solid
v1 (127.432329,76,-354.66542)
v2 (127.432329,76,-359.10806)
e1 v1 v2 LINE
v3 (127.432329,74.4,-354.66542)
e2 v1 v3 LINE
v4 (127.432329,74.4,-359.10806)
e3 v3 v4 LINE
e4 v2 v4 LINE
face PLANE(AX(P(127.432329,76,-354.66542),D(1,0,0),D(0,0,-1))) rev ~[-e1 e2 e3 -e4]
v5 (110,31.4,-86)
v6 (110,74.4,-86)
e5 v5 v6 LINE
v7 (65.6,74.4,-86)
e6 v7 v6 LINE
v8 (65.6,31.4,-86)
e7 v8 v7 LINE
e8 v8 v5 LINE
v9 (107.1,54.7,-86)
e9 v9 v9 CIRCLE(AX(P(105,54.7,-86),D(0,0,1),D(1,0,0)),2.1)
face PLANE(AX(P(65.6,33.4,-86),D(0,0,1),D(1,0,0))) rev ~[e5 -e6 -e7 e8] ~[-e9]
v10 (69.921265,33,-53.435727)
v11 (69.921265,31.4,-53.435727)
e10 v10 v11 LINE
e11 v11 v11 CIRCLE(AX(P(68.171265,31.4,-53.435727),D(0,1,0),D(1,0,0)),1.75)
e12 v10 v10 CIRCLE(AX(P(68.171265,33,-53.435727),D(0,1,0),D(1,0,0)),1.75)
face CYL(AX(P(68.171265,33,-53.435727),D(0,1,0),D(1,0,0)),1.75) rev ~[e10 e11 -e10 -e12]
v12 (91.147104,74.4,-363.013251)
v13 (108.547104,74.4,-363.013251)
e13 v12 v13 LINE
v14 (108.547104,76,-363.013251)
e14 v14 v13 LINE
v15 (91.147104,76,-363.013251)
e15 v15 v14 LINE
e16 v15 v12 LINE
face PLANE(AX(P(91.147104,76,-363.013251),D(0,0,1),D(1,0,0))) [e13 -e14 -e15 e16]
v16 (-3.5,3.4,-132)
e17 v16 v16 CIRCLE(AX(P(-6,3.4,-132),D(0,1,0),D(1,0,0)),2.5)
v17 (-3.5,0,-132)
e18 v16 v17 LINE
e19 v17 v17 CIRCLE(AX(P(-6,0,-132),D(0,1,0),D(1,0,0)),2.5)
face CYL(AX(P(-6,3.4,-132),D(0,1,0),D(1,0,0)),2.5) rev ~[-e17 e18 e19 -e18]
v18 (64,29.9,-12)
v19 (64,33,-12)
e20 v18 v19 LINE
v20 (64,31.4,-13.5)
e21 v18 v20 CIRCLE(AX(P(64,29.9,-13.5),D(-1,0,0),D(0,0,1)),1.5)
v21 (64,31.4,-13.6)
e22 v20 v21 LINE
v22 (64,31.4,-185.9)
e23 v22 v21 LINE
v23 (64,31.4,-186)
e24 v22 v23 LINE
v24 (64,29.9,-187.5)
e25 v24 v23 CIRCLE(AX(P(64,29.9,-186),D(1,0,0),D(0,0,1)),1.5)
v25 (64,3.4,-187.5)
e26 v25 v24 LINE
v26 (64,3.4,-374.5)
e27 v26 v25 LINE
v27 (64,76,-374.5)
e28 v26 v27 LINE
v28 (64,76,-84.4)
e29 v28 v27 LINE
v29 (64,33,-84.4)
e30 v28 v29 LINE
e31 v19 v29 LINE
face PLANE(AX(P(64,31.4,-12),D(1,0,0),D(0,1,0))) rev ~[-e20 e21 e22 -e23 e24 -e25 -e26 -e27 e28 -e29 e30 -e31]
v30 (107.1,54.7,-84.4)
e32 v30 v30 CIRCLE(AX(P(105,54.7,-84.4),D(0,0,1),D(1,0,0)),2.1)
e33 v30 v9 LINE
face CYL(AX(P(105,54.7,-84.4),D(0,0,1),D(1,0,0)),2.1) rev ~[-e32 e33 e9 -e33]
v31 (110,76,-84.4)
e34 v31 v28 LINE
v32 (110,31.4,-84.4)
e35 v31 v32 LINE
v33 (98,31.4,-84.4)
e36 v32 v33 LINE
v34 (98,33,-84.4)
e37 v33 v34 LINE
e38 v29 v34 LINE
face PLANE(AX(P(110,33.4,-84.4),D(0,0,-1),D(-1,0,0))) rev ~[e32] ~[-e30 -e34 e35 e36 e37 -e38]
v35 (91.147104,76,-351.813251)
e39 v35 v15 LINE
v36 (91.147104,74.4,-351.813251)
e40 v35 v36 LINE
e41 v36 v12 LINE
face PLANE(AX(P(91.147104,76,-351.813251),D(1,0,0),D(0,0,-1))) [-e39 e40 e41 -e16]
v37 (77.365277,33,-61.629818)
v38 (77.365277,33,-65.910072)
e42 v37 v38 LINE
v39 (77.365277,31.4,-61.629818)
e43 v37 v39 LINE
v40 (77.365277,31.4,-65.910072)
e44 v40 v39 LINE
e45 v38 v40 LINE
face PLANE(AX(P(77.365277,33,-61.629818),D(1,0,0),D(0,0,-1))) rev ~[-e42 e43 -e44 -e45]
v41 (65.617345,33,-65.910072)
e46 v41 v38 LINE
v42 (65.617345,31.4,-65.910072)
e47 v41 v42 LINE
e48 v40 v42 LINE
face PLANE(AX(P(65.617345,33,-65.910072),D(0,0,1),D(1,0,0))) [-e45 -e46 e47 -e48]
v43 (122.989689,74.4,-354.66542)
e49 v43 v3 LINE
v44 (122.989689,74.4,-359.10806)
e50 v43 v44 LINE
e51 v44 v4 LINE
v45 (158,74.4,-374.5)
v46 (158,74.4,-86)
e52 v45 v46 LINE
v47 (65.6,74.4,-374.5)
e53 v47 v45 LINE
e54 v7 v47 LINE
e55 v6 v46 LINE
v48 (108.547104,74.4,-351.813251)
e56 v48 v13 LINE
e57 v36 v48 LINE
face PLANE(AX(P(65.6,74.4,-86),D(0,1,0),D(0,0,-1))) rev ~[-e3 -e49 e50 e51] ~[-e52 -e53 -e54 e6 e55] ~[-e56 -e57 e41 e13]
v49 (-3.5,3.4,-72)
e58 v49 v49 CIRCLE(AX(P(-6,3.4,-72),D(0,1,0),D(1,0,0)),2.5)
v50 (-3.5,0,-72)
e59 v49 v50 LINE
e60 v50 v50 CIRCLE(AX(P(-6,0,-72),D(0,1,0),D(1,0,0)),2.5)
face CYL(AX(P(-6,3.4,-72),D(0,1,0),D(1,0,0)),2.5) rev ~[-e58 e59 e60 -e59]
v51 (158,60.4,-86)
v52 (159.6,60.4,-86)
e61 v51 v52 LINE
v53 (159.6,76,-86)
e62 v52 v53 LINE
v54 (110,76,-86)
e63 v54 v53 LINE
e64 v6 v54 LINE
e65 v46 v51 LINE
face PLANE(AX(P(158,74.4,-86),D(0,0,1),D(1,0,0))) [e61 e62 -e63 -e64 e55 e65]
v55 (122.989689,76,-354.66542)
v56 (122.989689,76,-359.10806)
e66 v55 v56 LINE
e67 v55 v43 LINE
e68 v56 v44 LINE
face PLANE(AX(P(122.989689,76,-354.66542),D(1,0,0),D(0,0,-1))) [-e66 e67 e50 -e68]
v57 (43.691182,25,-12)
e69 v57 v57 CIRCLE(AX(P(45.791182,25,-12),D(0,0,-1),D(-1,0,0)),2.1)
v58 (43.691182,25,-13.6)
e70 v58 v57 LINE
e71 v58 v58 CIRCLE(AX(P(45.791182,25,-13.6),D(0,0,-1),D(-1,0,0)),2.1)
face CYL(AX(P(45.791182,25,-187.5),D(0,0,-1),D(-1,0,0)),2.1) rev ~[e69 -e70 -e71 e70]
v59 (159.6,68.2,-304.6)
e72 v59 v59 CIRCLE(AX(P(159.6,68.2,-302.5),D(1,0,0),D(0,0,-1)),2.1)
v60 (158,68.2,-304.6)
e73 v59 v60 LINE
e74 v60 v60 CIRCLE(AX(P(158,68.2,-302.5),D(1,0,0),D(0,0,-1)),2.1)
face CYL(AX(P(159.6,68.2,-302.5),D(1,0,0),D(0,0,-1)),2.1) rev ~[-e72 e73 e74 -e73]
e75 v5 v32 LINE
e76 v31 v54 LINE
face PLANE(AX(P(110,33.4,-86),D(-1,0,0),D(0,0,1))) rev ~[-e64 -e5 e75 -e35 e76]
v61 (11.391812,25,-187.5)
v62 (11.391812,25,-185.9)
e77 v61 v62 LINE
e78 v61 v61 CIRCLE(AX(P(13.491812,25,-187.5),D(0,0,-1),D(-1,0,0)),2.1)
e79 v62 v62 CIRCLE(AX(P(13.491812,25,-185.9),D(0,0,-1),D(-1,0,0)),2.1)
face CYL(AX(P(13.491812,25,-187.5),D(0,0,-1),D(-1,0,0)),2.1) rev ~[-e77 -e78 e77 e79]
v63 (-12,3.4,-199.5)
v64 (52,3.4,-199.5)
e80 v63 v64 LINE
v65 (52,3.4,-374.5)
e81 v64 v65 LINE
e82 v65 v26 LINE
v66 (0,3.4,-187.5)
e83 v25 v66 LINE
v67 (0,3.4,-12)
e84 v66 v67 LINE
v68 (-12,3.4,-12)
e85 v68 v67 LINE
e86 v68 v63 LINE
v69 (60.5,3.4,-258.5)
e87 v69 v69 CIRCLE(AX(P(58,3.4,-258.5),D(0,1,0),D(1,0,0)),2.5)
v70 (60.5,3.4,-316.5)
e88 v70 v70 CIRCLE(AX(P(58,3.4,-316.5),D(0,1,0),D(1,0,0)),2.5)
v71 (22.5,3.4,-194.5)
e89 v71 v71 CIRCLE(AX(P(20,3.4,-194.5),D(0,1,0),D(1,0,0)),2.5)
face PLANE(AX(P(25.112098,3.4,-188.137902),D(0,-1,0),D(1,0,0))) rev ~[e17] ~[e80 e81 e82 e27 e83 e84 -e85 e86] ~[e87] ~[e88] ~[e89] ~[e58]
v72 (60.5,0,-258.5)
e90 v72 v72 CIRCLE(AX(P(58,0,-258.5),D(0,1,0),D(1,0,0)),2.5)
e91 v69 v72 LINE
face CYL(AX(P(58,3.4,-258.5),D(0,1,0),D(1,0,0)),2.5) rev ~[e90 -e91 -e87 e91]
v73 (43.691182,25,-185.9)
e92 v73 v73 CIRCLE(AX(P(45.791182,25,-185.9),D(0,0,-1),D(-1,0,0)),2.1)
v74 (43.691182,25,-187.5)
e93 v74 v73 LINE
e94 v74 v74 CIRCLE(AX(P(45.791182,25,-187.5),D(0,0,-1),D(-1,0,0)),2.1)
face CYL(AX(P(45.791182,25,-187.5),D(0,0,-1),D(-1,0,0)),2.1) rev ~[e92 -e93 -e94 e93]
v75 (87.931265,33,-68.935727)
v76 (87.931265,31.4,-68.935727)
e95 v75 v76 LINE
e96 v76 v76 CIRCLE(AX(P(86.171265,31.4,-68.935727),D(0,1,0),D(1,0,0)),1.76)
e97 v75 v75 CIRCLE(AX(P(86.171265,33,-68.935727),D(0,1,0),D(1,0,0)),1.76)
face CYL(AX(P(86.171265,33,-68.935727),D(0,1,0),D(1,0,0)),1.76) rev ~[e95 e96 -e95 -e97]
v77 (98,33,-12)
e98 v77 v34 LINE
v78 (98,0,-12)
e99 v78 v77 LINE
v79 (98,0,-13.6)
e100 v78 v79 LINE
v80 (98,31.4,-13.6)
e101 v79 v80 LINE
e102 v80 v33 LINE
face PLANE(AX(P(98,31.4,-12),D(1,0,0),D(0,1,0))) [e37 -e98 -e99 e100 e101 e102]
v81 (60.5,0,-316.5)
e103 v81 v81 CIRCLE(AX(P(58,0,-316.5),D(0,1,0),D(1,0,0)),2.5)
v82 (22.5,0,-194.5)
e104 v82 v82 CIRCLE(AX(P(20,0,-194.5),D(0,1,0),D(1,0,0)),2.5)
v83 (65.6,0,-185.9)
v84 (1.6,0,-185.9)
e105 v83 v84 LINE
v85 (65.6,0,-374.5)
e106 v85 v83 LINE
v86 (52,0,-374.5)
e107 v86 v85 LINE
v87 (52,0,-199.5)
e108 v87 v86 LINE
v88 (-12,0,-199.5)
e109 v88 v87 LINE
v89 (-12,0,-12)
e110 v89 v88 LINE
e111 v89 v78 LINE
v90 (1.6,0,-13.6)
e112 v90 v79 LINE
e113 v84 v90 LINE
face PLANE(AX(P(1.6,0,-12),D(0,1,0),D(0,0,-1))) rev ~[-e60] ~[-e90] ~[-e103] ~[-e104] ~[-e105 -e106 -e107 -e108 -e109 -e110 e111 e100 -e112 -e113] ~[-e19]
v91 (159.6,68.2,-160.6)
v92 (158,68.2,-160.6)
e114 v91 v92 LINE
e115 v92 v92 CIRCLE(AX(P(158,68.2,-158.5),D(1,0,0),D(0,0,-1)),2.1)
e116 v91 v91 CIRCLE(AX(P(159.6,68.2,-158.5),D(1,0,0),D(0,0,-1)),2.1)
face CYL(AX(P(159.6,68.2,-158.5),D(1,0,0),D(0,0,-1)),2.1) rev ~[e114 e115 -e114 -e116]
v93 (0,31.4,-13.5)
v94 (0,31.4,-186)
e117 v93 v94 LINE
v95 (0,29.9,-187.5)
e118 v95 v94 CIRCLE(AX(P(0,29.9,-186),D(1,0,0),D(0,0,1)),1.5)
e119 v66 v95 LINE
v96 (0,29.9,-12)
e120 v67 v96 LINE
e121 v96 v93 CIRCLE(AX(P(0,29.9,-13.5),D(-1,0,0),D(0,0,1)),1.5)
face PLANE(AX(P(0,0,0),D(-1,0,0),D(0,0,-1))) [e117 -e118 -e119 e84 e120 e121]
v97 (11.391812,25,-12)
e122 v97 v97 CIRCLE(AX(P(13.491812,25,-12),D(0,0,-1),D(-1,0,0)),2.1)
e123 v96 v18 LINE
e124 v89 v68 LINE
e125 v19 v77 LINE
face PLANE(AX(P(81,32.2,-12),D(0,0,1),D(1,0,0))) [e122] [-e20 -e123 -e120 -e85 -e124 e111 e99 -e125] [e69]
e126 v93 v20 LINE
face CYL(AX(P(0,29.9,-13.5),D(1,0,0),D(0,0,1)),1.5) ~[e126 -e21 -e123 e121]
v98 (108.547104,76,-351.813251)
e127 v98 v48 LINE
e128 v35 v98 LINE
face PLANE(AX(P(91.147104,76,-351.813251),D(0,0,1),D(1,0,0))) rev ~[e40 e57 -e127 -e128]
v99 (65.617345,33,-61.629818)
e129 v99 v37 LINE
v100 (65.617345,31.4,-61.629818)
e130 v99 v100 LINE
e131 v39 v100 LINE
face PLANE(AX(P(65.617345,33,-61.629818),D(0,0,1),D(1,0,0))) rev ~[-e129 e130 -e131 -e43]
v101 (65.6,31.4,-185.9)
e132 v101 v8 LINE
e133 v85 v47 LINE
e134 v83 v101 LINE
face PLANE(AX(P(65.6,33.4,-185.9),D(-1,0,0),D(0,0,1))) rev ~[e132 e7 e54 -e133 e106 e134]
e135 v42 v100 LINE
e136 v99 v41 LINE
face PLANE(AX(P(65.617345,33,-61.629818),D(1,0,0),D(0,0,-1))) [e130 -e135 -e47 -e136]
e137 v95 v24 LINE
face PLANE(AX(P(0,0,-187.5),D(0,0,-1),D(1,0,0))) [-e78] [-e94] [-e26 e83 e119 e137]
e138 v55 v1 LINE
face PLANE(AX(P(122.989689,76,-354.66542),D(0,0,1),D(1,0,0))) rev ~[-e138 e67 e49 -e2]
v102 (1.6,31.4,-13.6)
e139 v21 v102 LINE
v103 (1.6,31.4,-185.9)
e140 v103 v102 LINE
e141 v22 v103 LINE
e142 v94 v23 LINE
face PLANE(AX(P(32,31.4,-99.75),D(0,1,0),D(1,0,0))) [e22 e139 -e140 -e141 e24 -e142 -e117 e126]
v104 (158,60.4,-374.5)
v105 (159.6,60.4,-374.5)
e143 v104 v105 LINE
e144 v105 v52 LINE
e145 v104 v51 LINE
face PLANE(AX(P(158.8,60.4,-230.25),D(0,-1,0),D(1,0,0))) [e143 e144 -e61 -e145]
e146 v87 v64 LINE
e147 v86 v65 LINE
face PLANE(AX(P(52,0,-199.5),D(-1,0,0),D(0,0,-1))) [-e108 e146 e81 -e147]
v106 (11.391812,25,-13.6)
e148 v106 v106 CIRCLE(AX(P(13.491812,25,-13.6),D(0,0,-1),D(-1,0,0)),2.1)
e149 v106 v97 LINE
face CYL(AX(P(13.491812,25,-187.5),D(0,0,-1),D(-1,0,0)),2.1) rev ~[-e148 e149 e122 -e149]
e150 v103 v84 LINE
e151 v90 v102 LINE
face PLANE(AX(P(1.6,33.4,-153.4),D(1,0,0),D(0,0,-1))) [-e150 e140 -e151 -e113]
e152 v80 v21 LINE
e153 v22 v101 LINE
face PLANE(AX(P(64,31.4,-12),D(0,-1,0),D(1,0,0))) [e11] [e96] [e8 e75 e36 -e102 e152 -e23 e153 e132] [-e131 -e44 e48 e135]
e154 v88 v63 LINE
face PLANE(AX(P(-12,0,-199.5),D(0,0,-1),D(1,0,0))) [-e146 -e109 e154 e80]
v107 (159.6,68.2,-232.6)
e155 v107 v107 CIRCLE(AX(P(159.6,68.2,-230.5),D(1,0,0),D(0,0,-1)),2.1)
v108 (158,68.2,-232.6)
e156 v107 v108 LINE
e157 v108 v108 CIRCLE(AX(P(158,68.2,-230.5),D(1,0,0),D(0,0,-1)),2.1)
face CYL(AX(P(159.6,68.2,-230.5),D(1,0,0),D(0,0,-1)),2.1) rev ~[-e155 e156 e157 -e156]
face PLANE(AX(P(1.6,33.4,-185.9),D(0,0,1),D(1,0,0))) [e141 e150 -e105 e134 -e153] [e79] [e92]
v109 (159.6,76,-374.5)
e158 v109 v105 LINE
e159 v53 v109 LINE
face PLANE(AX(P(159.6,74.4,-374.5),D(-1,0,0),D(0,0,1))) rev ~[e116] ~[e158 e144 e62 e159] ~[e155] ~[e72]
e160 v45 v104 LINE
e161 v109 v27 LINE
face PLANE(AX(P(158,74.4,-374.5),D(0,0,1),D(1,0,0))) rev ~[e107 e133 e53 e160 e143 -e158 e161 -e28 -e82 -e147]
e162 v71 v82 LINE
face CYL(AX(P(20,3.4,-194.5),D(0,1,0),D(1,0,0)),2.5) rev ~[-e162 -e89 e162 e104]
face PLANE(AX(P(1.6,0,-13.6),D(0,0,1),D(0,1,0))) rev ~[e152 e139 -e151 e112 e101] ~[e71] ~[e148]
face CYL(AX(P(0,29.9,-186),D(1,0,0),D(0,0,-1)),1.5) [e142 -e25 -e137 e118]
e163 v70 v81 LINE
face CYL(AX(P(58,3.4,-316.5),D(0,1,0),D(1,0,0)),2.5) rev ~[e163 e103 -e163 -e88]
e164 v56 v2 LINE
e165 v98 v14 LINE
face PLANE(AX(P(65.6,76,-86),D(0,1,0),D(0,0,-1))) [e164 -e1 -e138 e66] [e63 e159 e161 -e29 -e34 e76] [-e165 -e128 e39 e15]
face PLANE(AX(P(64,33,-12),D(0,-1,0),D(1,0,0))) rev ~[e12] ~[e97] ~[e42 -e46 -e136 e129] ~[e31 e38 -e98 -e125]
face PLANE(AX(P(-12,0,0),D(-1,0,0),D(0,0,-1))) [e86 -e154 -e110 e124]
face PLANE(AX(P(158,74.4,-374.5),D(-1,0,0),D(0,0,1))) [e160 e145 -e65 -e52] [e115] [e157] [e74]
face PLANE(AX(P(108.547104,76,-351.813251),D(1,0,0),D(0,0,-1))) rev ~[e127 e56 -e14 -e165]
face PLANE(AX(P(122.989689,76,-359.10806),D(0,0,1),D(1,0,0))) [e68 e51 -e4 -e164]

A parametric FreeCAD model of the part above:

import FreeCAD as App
import Part
import Sketcher
from FreeCAD import Vector
Q = App.Units.Quantity


def edges_at(feature, points):
    """Names of the edges that pass closest to the given points."""
    edges = feature.Shape.Edges
    near = lambda p: min(range(len(edges)), key=lambda i: edges[i].distToShape(Part.Vertex(*p))[0])
    return sorted({f"Edge{near(p) + 1}" for p in points})


def add_polygon(sketch, points):
    """Adds a closed chain of lines whose ends are joined by coincident constraints."""
    first, n = sketch.GeometryCount, len(points)
    for a, b in zip(points, points[1:] + points[:1]):
        sketch.addGeometry(Part.LineSegment(App.Vector(*a, 0), App.Vector(*b, 0)), False)
    for i in range(n):
        sketch.addConstraint(Sketcher.Constraint("Coincident", first + i, 2, first + (i + 1) % n, 1))

doc = App.newDocument("Part")
body = doc.addObject("PartDesign::Body", "Body")

sketch1 = doc.addObject("Sketcher::SketchObject", "Sketch")
body.addObject(sketch1)
sketch1.AttachmentSupport = (doc.XZ_Plane, [""])
sketch1.MapMode = "FlatFace"
add_polygon(sketch1, [(0, -187.5), (0, 0), (1.6, 0), (1.6, -153.4), (65.6, -153.4), (65.6, -374.5), (64, -374.5), (64, -187.5)])
sketch1.addConstraint(Sketcher.Constraint("Vertical", 0))
sketch1.addConstraint(Sketcher.Constraint("Horizontal", 1))
sketch1.addConstraint(Sketcher.Constraint("Vertical", 2))
sketch1.addConstraint(Sketcher.Constraint("Horizontal", 3))
sketch1.addConstraint(Sketcher.Constraint("Vertical", 4))
sketch1.addConstraint(Sketcher.Constraint("Horizontal", 5))
sketch1.addConstraint(Sketcher.Constraint("Vertical", 6))
sketch1.addConstraint(Sketcher.Constraint("Horizontal", 7))
sketch1.addConstraint(Sketcher.Constraint("Coincident", 0, 2, -1, 1))
sketch1.addConstraint(Sketcher.Constraint("Equal", 1, 5))
sketch1.addConstraint(Sketcher.Constraint("DistanceX", 3, 1, 3, 2, Q("64 mm")))
sketch1.addConstraint(Sketcher.Constraint("DistanceY", 6, 1, 6, 2, Q("187 mm")))
sketch1.addConstraint(Sketcher.Constraint("DistanceX", 1, 1, 1, 2, Q("1.6 mm")))
sketch1.addConstraint(Sketcher.Constraint("DistanceY", 0, 1, 0, 2, Q("187.5 mm")))
sketch1.addConstraint(Sketcher.Constraint("DistanceY", 2, 2, 2, 1, Q("153.4 mm")))
pad1 = doc.addObject("PartDesign::Pad", "Pad")
body.addObject(pad1)
pad1.Profile = sketch1
pad1.Length = 76
pad1.Reversed = True

sketch2 = doc.addObject("Sketcher::SketchObject", "Sketch001")
body.addObject(sketch2)
sketch2.AttachmentSupport = (doc.YZ_Plane, [""])
sketch2.MapMode = "FlatFace"
add_polygon(sketch2, [(76, -188), (33, -188), (33, 0), (76, 0)])
sketch2.addConstraint(Sketcher.Constraint("Horizontal", 0))
sketch2.addConstraint(Sketcher.Constraint("Vertical", 1))
sketch2.addConstraint(Sketcher.Constraint("Horizontal", 2))
sketch2.addConstraint(Sketcher.Constraint("Vertical", 3))
sketch2.addConstraint(Sketcher.Constraint("PointOnObject", 1, 2, -1))
sketch2.addConstraint(Sketcher.Constraint("DistanceX", 0, 2, 0, 1, Q("42.6 mm")))
sketch2.addConstraint(Sketcher.Constraint("DistanceY", 1, 1, 1, 2, Q("187.5 mm")))
sketch2.addConstraint(Sketcher.Constraint("DistanceX", -1, 1, 2, 2, Q("76 mm")))
pocket1 = doc.addObject("PartDesign::Pocket", "Pocket")
body.addObject(pocket1)
pocket1.Profile = sketch2
pocket1.Length = 64
pocket1.Reversed = True

sketch3 = doc.addObject("Sketcher::SketchObject", "Sketch002")
body.addObject(sketch3)
sketch3.AttachmentSupport = (doc.XZ_Plane, [""])
sketch3.MapMode = "FlatFace"
add_polygon(sketch3, [(0, 0), (-12, 0), (-12, -200), (52, -200), (52, -374), (64, -374), (64, -188), (0, -188)])
sketch3.addConstraint(Sketcher.Constraint("Horizontal", 0))
sketch3.addConstraint(Sketcher.Constraint("Vertical", 1))
sketch3.addConstraint(Sketcher.Constraint("Horizontal", 2))
sketch3.addConstraint(Sketcher.Constraint("Vertical", 3))
sketch3.addConstraint(Sketcher.Constraint("Horizontal", 4))
sketch3.addConstraint(Sketcher.Constraint("Vertical", 5))
sketch3.addConstraint(Sketcher.Constraint("Horizontal", 6))
sketch3.addConstraint(Sketcher.Constraint("Vertical", 7))
sketch3.addConstraint(Sketcher.Constraint("Coincident", 7, 2, -1, 1))
sketch3.addConstraint(Sketcher.Constraint("Equal", 0, 4))
sketch3.addConstraint(Sketcher.Constraint("DistanceX", 0, 2, 0, 1, Q("12 mm")))
sketch3.addConstraint(Sketcher.Constraint("DistanceX", 2, 1, 2, 2, Q("64 mm")))
sketch3.addConstraint(Sketcher.Constraint("DistanceY", 3, 2, 3, 1, Q("175 mm")))
sketch3.addConstraint(Sketcher.Constraint("DistanceY", 5, 1, 5, 2, Q("187 mm")))
sketch3.addConstraint(Sketcher.Constraint("DistanceY", 1, 2, 1, 1, Q("199.5 mm")))
pad2 = doc.addObject("PartDesign::Pad", "Pad001")
body.addObject(pad2)
pad2.Profile = sketch3
pad2.Length = 3.4
pad2.Reversed = True

sketch4 = doc.addObject("Sketcher::SketchObject", "Sketch003")
body.addObject(sketch4)
sketch4.AttachmentSupport = (doc.XY_Plane, [""])
sketch4.MapMode = "FlatFace"
add_polygon(sketch4, [(-12, 3.4), (-12, 0), (1.6, 0), (1.6, 33.4), (0, 33.4), (0, 3.4)])
sketch4.addConstraint(Sketcher.Constraint("Vertical", 0))
sketch4.addConstraint(Sketcher.Constraint("Horizontal", 1))
sketch4.addConstraint(Sketcher.Constraint("Vertical", 2))
sketch4.addConstraint(Sketcher.Constraint("Horizontal", 3))
sketch4.addConstraint(Sketcher.Constraint("Vertical", 4))
sketch4.addConstraint(Sketcher.Constraint("Horizontal", 5))
sketch4.addConstraint(Sketcher.Constraint("PointOnObject", 0, 2, -1))
sketch4.addConstraint(Sketcher.Constraint("PointOnObject", 3, 2, -2))
sketch4.addConstraint(Sketcher.Constraint("DistanceX", 5, 2, 5, 1, Q("12 mm")))
sketch4.addConstraint(Sketcher.Constraint("DistanceY", 4, 2, 4, 1, Q("30 mm")))
sketch4.addConstraint(Sketcher.Constraint("DistanceX", 1, 1, 1, 2, Q("13.6 mm")))
sketch4.addConstraint(Sketcher.Constraint("DistanceY", 0, 2, 0, 1, Q("3.4 mm")))
pocket2 = doc.addObject("PartDesign::Pocket", "Pocket001")
body.addObject(pocket2)
pocket2.Profile = sketch4
pocket2.Length = 12

sketch5 = doc.addObject("Sketcher::SketchObject", "Sketch004")
body.addObject(sketch5)
sketch5.AttachmentSupport = (doc.XY_Plane, [""])
sketch5.MapMode = "FlatFace"
sketch5.AttachmentOffset = App.Placement(Vector(0, 0, -153.4), App.Rotation())
add_polygon(sketch5, [(64, 76), (64, 33.4), (65.6, 33.4), (65.6, 76)])
sketch5.addConstraint(Sketcher.Constraint("Vertical", 0))
sketch5.addConstraint(Sketcher.Constraint("Horizontal", 1))
sketch5.addConstraint(Sketcher.Constraint("Vertical", 2))
sketch5.addConstraint(Sketcher.Constraint("Horizontal", 3))
sketch5.addConstraint(Sketcher.Constraint("DistanceX", 1, 1, 1, 2, Q("1.6 mm")))
sketch5.addConstraint(Sketcher.Constraint("DistanceY", 0, 2, 0, 1, Q("42.6 mm")))
sketch5.addConstraint(Sketcher.Constraint("DistanceX", -1, 1, 0, 2, Q("64 mm")))
sketch5.addConstraint(Sketcher.Constraint("DistanceY", -1, 1, 2, 2, Q("76 mm")))
pad3 = doc.addObject("PartDesign::Pad", "Pad002")
body.addObject(pad3)
pad3.Profile = sketch5
pad3.Length = 141.4

sketch6 = doc.addObject("Sketcher::SketchObject", "Sketch005")
body.addObject(sketch6)
sketch6.AttachmentSupport = (doc.YZ_Plane, [""])
sketch6.MapMode = "FlatFace"
sketch6.AttachmentOffset = App.Placement(Vector(0, 0, 1.6), App.Rotation())
add_polygon(sketch6, [(33.4, -12), (0, -12), (0, -13.6), (33.4, -13.6)])
sketch6.addConstraint(Sketcher.Constraint("Horizontal", 0))
sketch6.addConstraint(Sketcher.Constraint("Vertical", 1))
sketch6.addConstraint(Sketcher.Constraint("Horizontal", 2))
sketch6.addConstraint(Sketcher.Constraint("Vertical", 3))
sketch6.addConstraint(Sketcher.Constraint("PointOnObject", 0, 2, -2))
sketch6.addConstraint(Sketcher.Constraint("DistanceX", 0, 2, 0, 1, Q("33.4 mm")))
sketch6.addConstraint(Sketcher.Constraint("DistanceY", 1, 2, 1, 1, Q("1.6 mm")))
sketch6.addConstraint(Sketcher.Constraint("DistanceY", 0, 2, -1, 1, Q("12 mm")))
pad4 = doc.addObject("PartDesign::Pad", "Pad003")
body.addObject(pad4)
pad4.Profile = sketch6
pad4.Length = 158

sketch7 = doc.addObject("Sketcher::SketchObject", "Sketch006")
body.addObject(sketch7)
sketch7.AttachmentSupport = (doc.YZ_Plane, [""])
sketch7.MapMode = "FlatFace"
sketch7.AttachmentOffset = App.Placement(Vector(0, 0, 65.6), App.Rotation())
add_polygon(sketch7, [(35, -12), (33.4, -12), (33.4, -86), (35, -86)])
sketch7.addConstraint(Sketcher.Constraint("Horizontal", 0))
sketch7.addConstraint(Sketcher.Constraint("Vertical", 1))
sketch7.addConstraint(Sketcher.Constraint("Horizontal", 2))
sketch7.addConstraint(Sketcher.Constraint("Vertical", 3))
sketch7.addConstraint(Sketcher.Constraint("DistanceY", 1, 2, 1, 1, Q("74 mm")))
sketch7.addConstraint(Sketcher.Constraint("DistanceX", 0, 2, 0, 1, Q("1.6 mm")))
sketch7.addConstraint(Sketcher.Constraint("DistanceY", 0, 2, -1, 1, Q("12 mm")))
sketch7.addConstraint(Sketcher.Constraint("DistanceX", -1, 1, 2, 2, Q("35 mm")))
pad5 = doc.addObject("PartDesign::Pad", "Pad004")
body.addObject(pad5)
pad5.Profile = sketch7
pad5.Length = 94

sketch8 = doc.addObject("Sketcher::SketchObject", "Sketch007")
body.addObject(sketch8)
sketch8.AttachmentSupport = (doc.XY_Plane, [""])
sketch8.MapMode = "FlatFace"
sketch8.AttachmentOffset = App.Placement(Vector(0, 0, -12), App.Rotation())
add_polygon(sketch8, [(64, 76), (64, 35), (65.6, 35), (65.6, 76)])
sketch8.addConstraint(Sketcher.Constraint("Vertical", 0))
sketch8.addConstraint(Sketcher.Constraint("Horizontal", 1))
sketch8.addConstraint(Sketcher.Constraint("Vertical", 2))
sketch8.addConstraint(Sketcher.Constraint("Horizontal", 3))
sketch8.addConstraint(Sketcher.Constraint("DistanceY", 0, 2, 0, 1, Q("41 mm")))
sketch8.addConstraint(Sketcher.Constraint("DistanceX", 1, 1, 1, 2, Q("1.6 mm")))
sketch8.addConstraint(Sketcher.Constraint("DistanceX", -1, 1, 0, 2, Q("64 mm")))
sketch8.addConstraint(Sketcher.Constraint("DistanceY", -1, 1, 0, 2, Q("35 mm")))
pocket3 = doc.addObject("PartDesign::Pocket", "Pocket002")
body.addObject(pocket3)
pocket3.Profile = sketch8
pocket3.Length = 74

sketch9 = doc.addObject("Sketcher::SketchObject", "Sketch008")
body.addObject(sketch9)
sketch9.AttachmentSupport = (doc.XY_Plane, [""])
sketch9.MapMode = "FlatFace"
sketch9.AttachmentOffset = App.Placement(Vector(0, 0, -86), App.Rotation())
add_polygon(sketch9, [(64, 76), (64, 35), (160, 35), (160, 76)])
sketch9.addConstraint(Sketcher.Constraint("Vertical", 0))
sketch9.addConstraint(Sketcher.Constraint("Horizontal", 1))
sketch9.addConstraint(Sketcher.Constraint("Vertical", 2))
sketch9.addConstraint(Sketcher.Constraint("Horizontal", 3))
sketch9.addConstraint(Sketcher.Constraint("DistanceY", 0, 2, 0, 1, Q("41 mm")))
sketch9.addConstraint(Sketcher.Constraint("DistanceX", 1, 1, 1, 2, Q("95.6 mm")))
sketch9.addConstraint(Sketcher.Constraint("DistanceX", -1, 1, 0, 2, Q("64 mm")))
sketch9.addConstraint(Sketcher.Constraint("DistanceY", -1, 1, 0, 2, Q("35 mm")))
pad6 = doc.addObject("PartDesign::Pad", "Pad005")
body.addObject(pad6)
pad6.Profile = sketch9
pad6.Length = 1.6

sketch10 = doc.addObject("Sketcher::SketchObject", "Sketch009")
body.addObject(sketch10)
sketch10.AttachmentSupport = (doc.XZ_Plane, [""])
sketch10.MapMode = "FlatFace"
sketch10.AttachmentOffset = App.Placement(Vector(0, 0, -33.4), App.Rotation())
add_polygon(sketch10, [(2, -186), (2, -153), (64, -153), (64, -186)])
sketch10.addConstraint(Sketcher.Constraint("Vertical", 0))
sketch10.addConstraint(Sketcher.Constraint("Horizontal", 1))
sketch10.addConstraint(Sketcher.Constraint("Vertical", 2))
sketch10.addConstraint(Sketcher.Constraint("Horizontal", 3))
sketch10.addConstraint(Sketcher.Constraint("DistanceX", 1, 1, 1, 2, Q("62.4 mm")))
sketch10.addConstraint(Sketcher.Constraint("DistanceY", 0, 1, 0, 2, Q("32.5 mm")))
sketch10.addConstraint(Sketcher.Constraint("DistanceX", -1, 1, 1, 2, Q("64 mm")))
sketch10.addConstraint(Sketcher.Constraint("DistanceY", 0, 2, -1, 1, Q("153.4 mm")))
pocket4 = doc.addObject("PartDesign::Pocket", "Pocket003")
body.addObject(pocket4)
pocket4.Profile = sketch10
pocket4.Length = 33.4
pocket4.Reversed = True

sketch11 = doc.addObject("Sketcher::SketchObject", "Sketch010")
body.addObject(sketch11)
sketch11.AttachmentSupport = (doc.XZ_Plane, [""])
sketch11.MapMode = "FlatFace"
add_polygon(sketch11, [(64, -153.4), (64, -185.9), (65.6, -185.9), (65.6, -153.4)])
sketch11.addConstraint(Sketcher.Constraint("Vertical", 0))
sketch11.addConstraint(Sketcher.Constraint("Horizontal", 1))
sketch11.addConstraint(Sketcher.Constraint("Vertical", 2))
sketch11.addConstraint(Sketcher.Constraint("Horizontal", 3))
sketch11.addConstraint(Sketcher.Constraint("DistanceX", 1, 1, 1, 2, Q("1.6 mm")))
sketch11.addConstraint(Sketcher.Constraint("DistanceY", 0, 2, 0, 1, Q("32.5 mm")))
sketch11.addConstraint(Sketcher.Constraint("DistanceX", -1, 1, 0, 2, Q("64 mm")))
sketch11.addConstraint(Sketcher.Constraint("DistanceY", 0, 2, -1, 1, Q("185.9 mm")))
pocket5 = doc.addObject("PartDesign::Pocket", "Pocket004")
body.addObject(pocket5)
pocket5.Profile = sketch11
pocket5.Length = 33.4

sketch12 = doc.addObject("Sketcher::SketchObject", "Sketch011")
body.addObject(sketch12)
sketch12.AttachmentSupport = (doc.XY_Plane, [""])
sketch12.MapMode = "FlatFace"
sketch12.AttachmentOffset = App.Placement(Vector(0, 0, -12), App.Rotation())
add_polygon(sketch12, [(98, 76), (98, 0), (160, 0), (160, 76)])
sketch12.addConstraint(Sketcher.Constraint("Vertical", 0))
sketch12.addConstraint(Sketcher.Constraint("Horizontal", 1))
sketch12.addConstraint(Sketcher.Constraint("Vertical", 2))
sketch12.addConstraint(Sketcher.Constraint("Horizontal", 3))
sketch12.addConstraint(Sketcher.Constraint("PointOnObject", 0, 2, -1))
sketch12.addConstraint(Sketcher.Constraint("DistanceY", 0, 2, 0, 1, Q("76 mm")))
sketch12.addConstraint(Sketcher.Constraint("DistanceX", 1, 1, 1, 2, Q("61.6 mm")))
sketch12.addConstraint(Sketcher.Constraint("DistanceX", -1, 1, 0, 2, Q("98 mm")))
pocket6 = doc.addObject("PartDesign::Pocket", "Pocket005")
body.addObject(pocket6)
pocket6.Profile = sketch12
pocket6.Length = 74

sketch13 = doc.addObject("Sketcher::SketchObject", "Sketch012")
body.addObject(sketch13)
sketch13.AttachmentSupport = (doc.YZ_Plane, [""])
sketch13.MapMode = "FlatFace"
sketch13.AttachmentOffset = App.Placement(Vector(0, 0, 98), App.Rotation())
add_polygon(sketch13, [(76, -84.4), (33.4, -84.4), (33.4, -86), (76, -86)])
sketch13.addConstraint(Sketcher.Constraint("Horizontal", 0))
sketch13.addConstraint(Sketcher.Constraint("Vertical", 1))
sketch13.addConstraint(Sketcher.Constraint("Horizontal", 2))
sketch13.addConstraint(Sketcher.Constraint("Vertical", 3))
sketch13.addConstraint(Sketcher.Constraint("DistanceX", 0, 2, 0, 1, Q("42.6 mm")))
sketch13.addConstraint(Sketcher.Constraint("DistanceY", 1, 2, 1, 1, Q("1.6 mm")))
sketch13.addConstraint(Sketcher.Constraint("DistanceY", 1, 2, -1, 1, Q("86 mm")))
sketch13.addConstraint(Sketcher.Constraint("DistanceX", -1, 1, 2, 2, Q("76 mm")))
pad7 = doc.addObject("PartDesign::Pad", "Pad006")
body.addObject(pad7)
pad7.Profile = sketch13
pad7.Length = 12

sketch14 = doc.addObject("Sketcher::SketchObject", "Sketch013")
body.addObject(sketch14)
sketch14.AttachmentSupport = (doc.YZ_Plane, [""])
sketch14.MapMode = "FlatFace"
sketch14.AttachmentOffset = App.Placement(Vector(0, 0, 65.6), App.Rotation())
add_polygon(sketch14, [(76, -86), (74.4, -86), (74.4, -374.5), (76, -374.5)])
sketch14.addConstraint(Sketcher.Constraint("Horizontal", 0))
sketch14.addConstraint(Sketcher.Constraint("Vertical", 1))
sketch14.addConstraint(Sketcher.Constraint("Horizontal", 2))
sketch14.addConstraint(Sketcher.Constraint("Vertical", 3))
sketch14.addConstraint(Sketcher.Constraint("DistanceX", 0, 2, 0, 1, Q("1.6 mm")))
sketch14.addConstraint(Sketcher.Constraint("DistanceY", 1, 2, 1, 1, Q("288.5 mm")))
sketch14.addConstraint(Sketcher.Constraint("DistanceY", 0, 2, -1, 1, Q("86 mm")))
sketch14.addConstraint(Sketcher.Constraint("DistanceX", -1, 1, 2, 2, Q("76 mm")))
pad8 = doc.addObject("PartDesign::Pad", "Pad007")
body.addObject(pad8)
pad8.Profile = sketch14
pad8.Length = 94

sketch15 = doc.addObject("Sketcher::SketchObject", "Sketch014")
body.addObject(sketch15)
sketch15.AttachmentSupport = (doc.XZ_Plane, [""])
sketch15.MapMode = "FlatFace"
sketch15.AttachmentOffset = App.Placement(Vector(0, 0, -74.4), App.Rotation())
add_polygon(sketch15, [(158, -86), (158, -374.5), (159.6, -374.5), (159.6, -86)])
sketch15.addConstraint(Sketcher.Constraint("Vertical", 0))
sketch15.addConstraint(Sketcher.Constraint("Horizontal", 1))
sketch15.addConstraint(Sketcher.Constraint("Vertical", 2))
sketch15.addConstraint(Sketcher.Constraint("Horizontal", 3))
sketch15.addConstraint(Sketcher.Constraint("DistanceX", 1, 1, 1, 2, Q("1.6 mm")))
sketch15.addConstraint(Sketcher.Constraint("DistanceY", 0, 2, 0, 1, Q("288.5 mm")))
sketch15.addConstraint(Sketcher.Constraint("DistanceX", -1, 1, 0, 2, Q("158 mm")))
sketch15.addConstraint(Sketcher.Constraint("DistanceY", 2, 2, -1, 1, Q("86 mm")))
pad9 = doc.addObject("PartDesign::Pad", "Pad008")
body.addObject(pad9)
pad9.Profile = sketch15
pad9.Length = 14

sketch16 = doc.addObject("Sketcher::SketchObject", "Sketch015")
body.addObject(sketch16)
sketch16.AttachmentSupport = (doc.XZ_Plane, [""])
sketch16.MapMode = "FlatFace"
sketch16.AttachmentOffset = App.Placement(Vector(0, 0, -35), App.Rotation())
sketch16.addGeometry(Part.Circle(Vector(68.2, -53.4, 0), Vector(0, 0, 1), 1.8), False)
sketch16.addGeometry(Part.Circle(Vector(86.2, -68.9, 0), Vector(0, 0, 1), 1.8), False)
sketch16.addConstraint(Sketcher.Constraint("Diameter", 0, Q("3.5 mm")))
sketch16.addConstraint(Sketcher.Constraint("Diameter", 1, Q("3.52 mm")))
sketch16.addConstraint(Sketcher.Constraint("DistanceX", 0, 3, 1, 3, Q("18 mm")))
sketch16.addConstraint(Sketcher.Constraint("DistanceY", 1, 3, 0, 3, Q("15.5 mm")))
sketch16.addConstraint(Sketcher.Constraint("DistanceX", -1, 1, 0, 3, Q("68.171265 mm")))
sketch16.addConstraint(Sketcher.Constraint("DistanceY", 0, 3, -1, 1, Q("53.435727 mm")))
pocket7 = doc.addObject("PartDesign::Pocket", "Pocket006")
body.addObject(pocket7)
pocket7.Profile = sketch16
pocket7.Length = 5
pocket7.Reversed = True

sketch17 = doc.addObject("Sketcher::SketchObject", "Sketch016")
body.addObject(sketch17)
sketch17.AttachmentSupport = (doc.XY_Plane, [""])
sketch17.MapMode = "FlatFace"
sketch17.AttachmentOffset = App.Placement(Vector(0, 0, -187.5), App.Rotation())
sketch17.addGeometry(Part.Circle(Vector(45.8, 25, 0), Vector(0, 0, 1), 2.1), False)
sketch17.addGeometry(Part.Circle(Vector(13.5, 25, 0), Vector(0, 0, 1), 2.1), False)
sketch17.addConstraint(Sketcher.Constraint("Equal", 0, 1))
sketch17.addConstraint(Sketcher.Constraint("Horizontal", 0, 3, 1, 3))
sketch17.addConstraint(Sketcher.Constraint("Diameter", 0, Q("4.2 mm")))
sketch17.addConstraint(Sketcher.Constraint("DistanceY", -1, 1, 0, 3, Q("25 mm")))
sketch17.addConstraint(Sketcher.Constraint("DistanceX", -1, 1, 1, 3, Q("13.491812 mm")))
sketch17.addConstraint(Sketcher.Constraint("DistanceX", 1, 3, 0, 3, Q("32.29937 mm")))
pocket8 = doc.addObject("PartDesign::Pocket", "Pocket007")
body.addObject(pocket8)
pocket8.Profile = sketch17
pocket8.Length = 195
pocket8.Reversed = True

sketch18 = doc.addObject("Sketcher::SketchObject", "Sketch017")
body.addObject(sketch18)
sketch18.AttachmentSupport = (doc.XZ_Plane, [""])
sketch18.MapMode = "FlatFace"
sketch18.AttachmentOffset = App.Placement(Vector(0, 0, -3.4), App.Rotation())
sketch18.addGeometry(Part.Circle(Vector(58, -316.5, 0), Vector(0, 0, 1), 2.5), False)
sketch18.addGeometry(Part.Circle(Vector(58, -258.5, 0), Vector(0, 0, 1), 2.5), False)
sketch18.addGeometry(Part.Circle(Vector(-6, -72, 0), Vector(0, 0, 1), 2.5), False)
sketch18.addGeometry(Part.Circle(Vector(-6, -132, 0), Vector(0, 0, 1), 2.5), False)
sketch18.addGeometry(Part.Circle(Vector(20, -194.5, 0), Vector(0, 0, 1), 2.5), False)
sketch18.addConstraint(Sketcher.Constraint("Equal", 0, 1))
sketch18.addConstraint(Sketcher.Constraint("Equal", 1, 2))
sketch18.addConstraint(Sketcher.Constraint("Equal", 2, 3))
sketch18.addConstraint(Sketcher.Constraint("Equal", 3, 4))
sketch18.addConstraint(Sketcher.Constraint("Vertical", 0, 3, 1, 3))
sketch18.addConstraint(Sketcher.Constraint("Vertical", 2, 3, 3, 3))
sketch18.addConstraint(Sketcher.Constraint("Diameter", 0, Q("5 mm")))
sketch18.addConstraint(Sketcher.Constraint("DistanceX", -1, 1, 0, 3, Q("58 mm")))
sketch18.addConstraint(Sketcher.Constraint("DistanceX", 2, 3, -1, 1, Q("6 mm")))
sketch18.addConstraint(Sketcher.Constraint("DistanceY", 2, 3, -1, 1, Q("72 mm")))
sketch18.addConstraint(Sketcher.Constraint("DistanceY", 3, 3, -1, 1, Q("132 mm")))
sketch18.addConstraint(Sketcher.Constraint("DistanceX", -1, 1, 4, 3, Q("20 mm")))
sketch18.addConstraint(Sketcher.Constraint("DistanceY", 0, 3, 1, 3, Q("58 mm")))
sketch18.addConstraint(Sketcher.Constraint("DistanceY", 1, 3, 4, 3, Q("64 mm")))
sketch18.addConstraint(Sketcher.Constraint("DistanceY", 0, 3, -1, 1, Q("316.5 mm")))
pocket9 = doc.addObject("PartDesign::Pocket", "Pocket008")
body.addObject(pocket9)
pocket9.Profile = sketch18
pocket9.Length = 10
pocket9.Reversed = True

sketch19 = doc.addObject("Sketcher::SketchObject", "Sketch018")
body.addObject(sketch19)
sketch19.AttachmentSupport = (doc.YZ_Plane, [""])
sketch19.MapMode = "FlatFace"
sketch19.AttachmentOffset = App.Placement(Vector(0, 0, 159.6), App.Rotation())
sketch19.addGeometry(Part.Circle(Vector(68.2, -302.5, 0), Vector(0, 0, 1), 2.1), False)
sketch19.addGeometry(Part.Circle(Vector(68.2, -230.5, 0), Vector(0, 0, 1), 2.1), False)
sketch19.addGeometry(Part.Circle(Vector(68.2, -158.5, 0), Vector(0, 0, 1), 2.1), False)
sketch19.addConstraint(Sketcher.Constraint("Equal", 0, 1))
sketch19.addConstraint(Sketcher.Constraint("Equal", 1, 2))
sketch19.addConstraint(Sketcher.Constraint("Vertical", 0, 3, 1, 3))
sketch19.addConstraint(Sketcher.Constraint("Vertical", 1, 3, 2, 3))
sketch19.addConstraint(Sketcher.Constraint("Diameter", 0, Q("4.2 mm")))
sketch19.addConstraint(Sketcher.Constraint("DistanceY", 0, 3, 1, 3, Q("72 mm")))
sketch19.addConstraint(Sketcher.Constraint("DistanceY", 1, 3, 2, 3, Q("72 mm")))
sketch19.addConstraint(Sketcher.Constraint("DistanceX", -1, 1, 0, 3, Q("68.2 mm")))
sketch19.addConstraint(Sketcher.Constraint("DistanceY", 0, 3, -1, 1, Q("302.5 mm")))
pocket10 = doc.addObject("PartDesign::Pocket", "Pocket009")
body.addObject(pocket10)
pocket10.Profile = sketch19
pocket10.Length = 4

sketch20 = doc.addObject("Sketcher::SketchObject", "Sketch019")
body.addObject(sketch20)
sketch20.AttachmentSupport = (doc.XY_Plane, [""])
sketch20.MapMode = "FlatFace"
sketch20.AttachmentOffset = App.Placement(Vector(0, 0, -84.4), App.Rotation())
sketch20.addGeometry(Part.Circle(Vector(105, 54.7, 0), Vector(0, 0, 1), 2.1), False)
sketch20.addConstraint(Sketcher.Constraint("Diameter", 0, Q("4.2 mm")))
sketch20.addConstraint(Sketcher.Constraint("DistanceX", -1, 1, 0, 3, Q("105 mm")))
sketch20.addConstraint(Sketcher.Constraint("DistanceY", -1, 1, 0, 3, Q("54.7 mm")))
pocket11 = doc.addObject("PartDesign::Pocket", "Pocket010")
body.addObject(pocket11)
pocket11.Profile = sketch20
pocket11.Length = 4

sketch21 = doc.addObject("Sketcher::SketchObject", "Sketch020")
body.addObject(sketch21)
sketch21.AttachmentSupport = (doc.XZ_Plane, [""])
sketch21.MapMode = "FlatFace"
sketch21.AttachmentOffset = App.Placement(Vector(0, 0, -76), App.Rotation())
add_polygon(sketch21, [(91.1, -363), (91.1, -351.8), (108.5, -351.8), (108.5, -363)])
add_polygon(sketch21, [(123, -359.1), (123, -354.7), (127.4, -354.7), (127.4, -359.1)])
sketch21.addConstraint(Sketcher.Constraint("Vertical", 0))
sketch21.addConstraint(Sketcher.Constraint("Horizontal", 1))
sketch21.addConstraint(Sketcher.Constraint("Vertical", 2))
sketch21.addConstraint(Sketcher.Constraint("Horizontal", 3))
sketch21.addConstraint(Sketcher.Constraint("Vertical", 4))
sketch21.addConstraint(Sketcher.Constraint("Horizontal", 5))
sketch21.addConstraint(Sketcher.Constraint("Vertical", 6))
sketch21.addConstraint(Sketcher.Constraint("Horizontal", 7))
sketch21.addConstraint(Sketcher.Constraint("Equal", 7, 4))
sketch21.addConstraint(Sketcher.Constraint("DistanceX", 1, 1, 1, 2, Q("17.4 mm")))
sketch21.addConstraint(Sketcher.Constraint("DistanceY", 0, 1, 0, 2, Q("11.2 mm")))
sketch21.addConstraint(Sketcher.Constraint("DistanceX", 5, 1, 5, 2, Q("4.442641 mm")))
sketch21.addConstraint(Sketcher.Constraint("DistanceY", 0, 2, -1, 1, Q("351.813251 mm")))
sketch21.addConstraint(Sketcher.Constraint("DistanceX", -1, 1, 4, 2, Q("122.989689 mm")))
sketch21.addConstraint(Sketcher.Constraint("DistanceY", 4, 2, -1, 1, Q("354.66542 mm")))
sketch21.addConstraint(Sketcher.Constraint("DistanceX", -1, 1, 0, 2, Q("91.147104 mm")))
pocket12 = doc.addObject("PartDesign::Pocket", "Pocket011")
body.addObject(pocket12)
pocket12.Profile = sketch21
pocket12.Length = 4
pocket12.Reversed = True

sketch22 = doc.addObject("Sketcher::SketchObject", "Sketch021")
body.addObject(sketch22)
sketch22.AttachmentSupport = (doc.XZ_Plane, [""])
sketch22.MapMode = "FlatFace"
sketch22.AttachmentOffset = App.Placement(Vector(0, 0, -33.4), App.Rotation())
add_polygon(sketch22, [(0, -188), (0, -12), (64, -12), (64, -188)])
sketch22.addConstraint(Sketcher.Constraint("Vertical", 0))
sketch22.addConstraint(Sketcher.Constraint("Horizontal", 1))
sketch22.addConstraint(Sketcher.Constraint("Vertical", 2))
sketch22.addConstraint(Sketcher.Constraint("Horizontal", 3))
sketch22.addConstraint(Sketcher.Constraint("PointOnObject", 0, 2, -2))
sketch22.addConstraint(Sketcher.Constraint("DistanceX", 1, 1, 1, 2, Q("64 mm")))
sketch22.addConstraint(Sketcher.Constraint("DistanceY", 0, 1, 0, 2, Q("175.5 mm")))
sketch22.addConstraint(Sketcher.Constraint("DistanceY", 0, 2, -1, 1, Q("12 mm")))
pocket13 = doc.addObject("PartDesign::Pocket", "Pocket012")
body.addObject(pocket13)
pocket13.Profile = sketch22
pocket13.Length = 2
pocket13.Reversed = True

sketch23 = doc.addObject("Sketcher::SketchObject", "Sketch022")
body.addObject(sketch23)
sketch23.AttachmentSupport = (doc.YZ_Plane, [""])
sketch23.MapMode = "FlatFace"
sketch23.AttachmentOffset = App.Placement(Vector(0, 0, 64), App.Rotation())
add_polygon(sketch23, [(35, -84.4), (33.4, -84.4), (33.4, -13.6), (31.4, -13.6), (31.4, -12), (35, -12)])
sketch23.addConstraint(Sketcher.Constraint("Horizontal", 0))
sketch23.addConstraint(Sketcher.Constraint("Vertical", 1))
sketch23.addConstraint(Sketcher.Constraint("Horizontal", 2))
sketch23.addConstraint(Sketcher.Constraint("Vertical", 3))
sketch23.addConstraint(Sketcher.Constraint("Horizontal", 4))
sketch23.addConstraint(Sketcher.Constraint("Vertical", 5))
sketch23.addConstraint(Sketcher.Constraint("Equal", 0, 3))
sketch23.addConstraint(Sketcher.Constraint("DistanceX", 2, 2, 2, 1, Q("2 mm")))
sketch23.addConstraint(Sketcher.Constraint("DistanceX", 0, 2, 0, 1, Q("1.6 mm")))
sketch23.addConstraint(Sketcher.Constraint("DistanceY", 1, 1, 1, 2, Q("70.8 mm")))
sketch23.addConstraint(Sketcher.Constraint("DistanceY", 3, 2, -1, 1, Q("12 mm")))
sketch23.addConstraint(Sketcher.Constraint("DistanceX", -1, 1, 4, 2, Q("35 mm")))
pocket14 = doc.addObject("PartDesign::Pocket", "Pocket013")
body.addObject(pocket14)
pocket14.Profile = sketch23
pocket14.Length = 52
pocket14.Reversed = True

sketch24 = doc.addObject("Sketcher::SketchObject", "Sketch023")
body.addObject(sketch24)
sketch24.AttachmentSupport = (doc.XZ_Plane, [""])
sketch24.MapMode = "FlatFace"
sketch24.AttachmentOffset = App.Placement(Vector(0, 0, -33.4), App.Rotation())
add_polygon(sketch24, [(110, -86), (110, -84.4), (64, -84.4), (64, -185.9), (65.6, -185.9), (65.6, -86)])
sketch24.addConstraint(Sketcher.Constraint("Vertical", 0))
sketch24.addConstraint(Sketcher.Constraint("Horizontal", 1))
sketch24.addConstraint(Sketcher.Constraint("Vertical", 2))
sketch24.addConstraint(Sketcher.Constraint("Horizontal", 3))
sketch24.addConstraint(Sketcher.Constraint("Vertical", 4))
sketch24.addConstraint(Sketcher.Constraint("Horizontal", 5))
sketch24.addConstraint(Sketcher.Constraint("Equal", 3, 0))
sketch24.addConstraint(Sketcher.Constraint("DistanceX", 1, 2, 1, 1, Q("46 mm")))
sketch24.addConstraint(Sketcher.Constraint("DistanceX", 3, 1, 3, 2, Q("1.6 mm")))
sketch24.addConstraint(Sketcher.Constraint("DistanceY", 2, 2, 2, 1, Q("101.5 mm")))
sketch24.addConstraint(Sketcher.Constraint("DistanceX", -1, 1, 0, 2, Q("110 mm")))
sketch24.addConstraint(Sketcher.Constraint("DistanceY", 4, 2, -1, 1, Q("86 mm")))
pad10 = doc.addObject("PartDesign::Pad", "Pad009")
body.addObject(pad10)
pad10.Profile = sketch24
pad10.Length = 2

sketch25 = doc.addObject("Sketcher::SketchObject", "Sketch024")
body.addObject(sketch25)
sketch25.AttachmentSupport = (doc.XY_Plane, [""])
sketch25.MapMode = "FlatFace"
sketch25.AttachmentOffset = App.Placement(Vector(0, 0, -12), App.Rotation())
add_polygon(sketch25, [(64, 33), (64, 31.4), (98, 31.4), (98, 33)])
sketch25.addConstraint(Sketcher.Constraint("Vertical", 0))
sketch25.addConstraint(Sketcher.Constraint("Horizontal", 1))
sketch25.addConstraint(Sketcher.Constraint("Vertical", 2))
sketch25.addConstraint(Sketcher.Constraint("Horizontal", 3))
sketch25.addConstraint(Sketcher.Constraint("DistanceX", 1, 1, 1, 2, Q("34 mm")))
sketch25.addConstraint(Sketcher.Constraint("DistanceY", 0, 2, 0, 1, Q("1.6 mm")))
sketch25.addConstraint(Sketcher.Constraint("DistanceX", -1, 1, 0, 2, Q("64 mm")))
sketch25.addConstraint(Sketcher.Constraint("DistanceY", -1, 1, 2, 2, Q("33 mm")))
pad11 = doc.addObject("PartDesign::Pad", "Pad010")
body.addObject(pad11)
pad11.Profile = sketch25
pad11.Length = 72.4
pad11.Reversed = True
doc.recompute()

fillet = doc.addObject("PartDesign::Fillet", "Fillet")
body.addObject(fillet)
fillet.Base = (pad11, edges_at(pad11, [(32, 31.4, -187.5), (32, 31.4, -12)]))
fillet.Radius = 1.5

sketch26 = doc.addObject("Sketcher::SketchObject", "Sketch025")
body.addObject(sketch26)
sketch26.AttachmentSupport = (doc.XZ_Plane, [""])
sketch26.MapMode = "FlatFace"
sketch26.AttachmentOffset = App.Placement(Vector(0, 0, -33), App.Rotation())
sketch26.addGeometry(Part.Circle(Vector(86.2, -68.9, 0), Vector(0, 0, 1), 1.8), False)
sketch26.addGeometry(Part.Circle(Vector(68.2, -53.4, 0), Vector(0, 0, 1), 1.8), False)
sketch26.addConstraint(Sketcher.Constraint("Diameter", 1, Q("3.5 mm")))
sketch26.addConstraint(Sketcher.Constraint("Diameter", 0, Q("3.52 mm")))
sketch26.addConstraint(Sketcher.Constraint("DistanceX", 1, 3, 0, 3, Q("18 mm")))
sketch26.addConstraint(Sketcher.Constraint("DistanceY", 0, 3, 1, 3, Q("15.5 mm")))
sketch26.addConstraint(Sketcher.Constraint("DistanceX", -1, 1, 0, 3, Q("86.171265 mm")))
sketch26.addConstraint(Sketcher.Constraint("DistanceY", 0, 3, -1, 1, Q("68.935727 mm")))
pocket15 = doc.addObject("PartDesign::Pocket", "Pocket014")
body.addObject(pocket15)
pocket15.Profile = sketch26
pocket15.Length = 10
pocket15.Reversed = True

sketch27 = doc.addObject("Sketcher::SketchObject", "Sketch026")
body.addObject(sketch27)
sketch27.AttachmentSupport = (doc.XZ_Plane, [""])
sketch27.MapMode = "FlatFace"
sketch27.AttachmentOffset = App.Placement(Vector(0, 0, -33), App.Rotation())
add_polygon(sketch27, [(65.6, -65.9), (65.6, -61.6), (77.4, -61.6), (77.4, -65.9)])
sketch27.addConstraint(Sketcher.Constraint("Vertical", 0))
sketch27.addConstraint(Sketcher.Constraint("Horizontal", 1))
sketch27.addConstraint(Sketcher.Constraint("Vertical", 2))
sketch27.addConstraint(Sketcher.Constraint("Horizontal", 3))
sketch27.addConstraint(Sketcher.Constraint("DistanceX", 1, 1, 1, 2, Q("11.747932 mm")))
sketch27.addConstraint(Sketcher.Constraint("DistanceY", 0, 1, 0, 2, Q("4.280254 mm")))
sketch27.addConstraint(Sketcher.Constraint("DistanceY", 0, 2, -1, 1, Q("61.629818 mm")))
sketch27.addConstraint(Sketcher.Constraint("DistanceX", -1, 1, 0, 2, Q("65.617345 mm")))
pocket16 = doc.addObject("PartDesign::Pocket", "Pocket015")
body.addObject(pocket16)
pocket16.Profile = sketch27
pocket16.Length = 10
pocket16.Reversed = True

doc.recompute()
